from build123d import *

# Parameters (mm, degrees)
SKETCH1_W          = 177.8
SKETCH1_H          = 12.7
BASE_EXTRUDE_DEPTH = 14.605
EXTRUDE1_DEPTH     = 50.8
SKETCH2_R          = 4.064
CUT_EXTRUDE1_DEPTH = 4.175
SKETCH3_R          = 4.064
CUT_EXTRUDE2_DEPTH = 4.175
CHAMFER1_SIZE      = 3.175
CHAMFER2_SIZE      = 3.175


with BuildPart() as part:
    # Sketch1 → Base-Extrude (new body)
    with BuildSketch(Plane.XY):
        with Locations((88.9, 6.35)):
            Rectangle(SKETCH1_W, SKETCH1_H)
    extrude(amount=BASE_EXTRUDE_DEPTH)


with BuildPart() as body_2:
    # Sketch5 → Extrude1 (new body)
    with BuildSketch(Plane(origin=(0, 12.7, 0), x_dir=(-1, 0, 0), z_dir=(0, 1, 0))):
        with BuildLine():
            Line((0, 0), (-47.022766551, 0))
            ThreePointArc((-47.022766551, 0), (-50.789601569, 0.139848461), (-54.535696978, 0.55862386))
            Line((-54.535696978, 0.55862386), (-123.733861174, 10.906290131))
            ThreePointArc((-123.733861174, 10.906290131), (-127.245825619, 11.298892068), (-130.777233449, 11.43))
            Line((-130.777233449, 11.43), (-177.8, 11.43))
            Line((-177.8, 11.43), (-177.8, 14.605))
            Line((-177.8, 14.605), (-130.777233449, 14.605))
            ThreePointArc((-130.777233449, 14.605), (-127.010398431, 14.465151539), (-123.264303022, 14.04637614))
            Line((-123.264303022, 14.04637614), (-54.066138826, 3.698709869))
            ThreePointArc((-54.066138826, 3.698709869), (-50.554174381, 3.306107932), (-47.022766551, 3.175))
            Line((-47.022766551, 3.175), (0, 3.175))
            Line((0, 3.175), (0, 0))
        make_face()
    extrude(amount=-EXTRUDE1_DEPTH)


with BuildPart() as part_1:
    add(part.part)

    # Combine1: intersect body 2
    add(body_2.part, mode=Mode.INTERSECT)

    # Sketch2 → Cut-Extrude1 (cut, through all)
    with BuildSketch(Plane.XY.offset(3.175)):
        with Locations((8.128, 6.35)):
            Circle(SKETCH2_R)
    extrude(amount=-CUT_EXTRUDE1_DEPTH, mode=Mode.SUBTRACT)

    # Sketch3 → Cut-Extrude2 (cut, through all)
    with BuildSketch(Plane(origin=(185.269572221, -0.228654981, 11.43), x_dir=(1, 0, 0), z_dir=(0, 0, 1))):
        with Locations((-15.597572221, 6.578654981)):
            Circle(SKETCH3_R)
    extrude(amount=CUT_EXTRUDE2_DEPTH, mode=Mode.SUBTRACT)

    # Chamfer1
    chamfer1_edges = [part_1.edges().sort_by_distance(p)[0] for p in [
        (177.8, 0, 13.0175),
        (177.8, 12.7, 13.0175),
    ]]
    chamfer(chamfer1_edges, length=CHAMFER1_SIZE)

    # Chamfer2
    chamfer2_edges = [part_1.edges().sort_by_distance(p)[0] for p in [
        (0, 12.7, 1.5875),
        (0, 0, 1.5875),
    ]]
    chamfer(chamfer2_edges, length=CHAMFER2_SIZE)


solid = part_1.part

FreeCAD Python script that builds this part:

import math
import FreeCAD as App
import Part
import Sketcher

V = App.Vector
Q = App.Units.Quantity


def edges_at(feature, points):
    """Names of the edges that pass closest to the given points."""
    edges = feature.Shape.Edges
    near = lambda p: min(range(len(edges)), key=lambda i: edges[i].distToShape(Part.Vertex(*p))[0])
    return sorted({f"Edge{near(p) + 1}" for p in points})

doc = App.newDocument("Part")
body = doc.addObject("PartDesign::Body", "Body")

# Sketch on XY plane
sketch1 = doc.addObject("Sketcher::SketchObject", "Sketch")
body.addObject(sketch1)
sketch1.AttachmentSupport = (doc.XY_Plane, [""])
sketch1.MapMode = "FlatFace"
sketch1.addGeometry([
    Part.LineSegment(V(0, 12.7, 0), V(0, 0, 0)),
    Part.LineSegment(V(0, 0, 0), V(177.8, 0, 0)),
    Part.LineSegment(V(177.8, 0, 0), V(177.8, 12.7, 0)),
    Part.LineSegment(V(177.8, 12.7, 0), V(0, 12.7, 0)),
], False)
sketch1.addConstraint([
    Sketcher.Constraint("Coincident", 0, 2, 1, 1),
    Sketcher.Constraint("Coincident", 1, 2, 2, 1),
    Sketcher.Constraint("Coincident", 2, 2, 3, 1),
    Sketcher.Constraint("Coincident", 3, 2, 0, 1),
    Sketcher.Constraint("Vertical", 0),
    Sketcher.Constraint("Horizontal", 1),
    Sketcher.Constraint("Vertical", 2),
    Sketcher.Constraint("Horizontal", 3),
    Sketcher.Constraint("Coincident", 0, 2, -1, 1),
    Sketcher.Constraint("DistanceX", 1, 1, 1, 2, Q("7 in")),
    Sketcher.Constraint("DistanceY", 0, 2, 0, 1, Q("0.5 in")),
])
pad1 = doc.addObject("PartDesign::Pad", "Pad")
body.addObject(pad1)
pad1.Profile = sketch1
pad1.Length = Q("0.575 in")
body2 = doc.addObject("PartDesign::Body", "Body001")

# Sketch on XZ plane
sketch2 = doc.addObject("Sketcher::SketchObject", "Sketch001")
body2.addObject(sketch2)
sketch2.AttachmentSupport = (doc.getObject("XZ_Plane001"), [""])
sketch2.MapMode = "FlatFace"
sketch2.AttachmentOffset = App.Placement(V(0, 0, -0.5 * 25.4), App.Rotation())
sketch2.addGeometry([
    Part.LineSegment(V(47.022767, 0, 0), V(0, 0, 0)),  # 0
    Part.LineSegment(V(0, 0, 0), V(0, 3.175, 0)),  # 1
    Part.LineSegment(V(0, 3.175, 0), V(47.022767, 3.175, 0)),  # 2
    Part.ArcOfCircle(Part.Circle(V(47.022767, 50.8, 0), V(0, 0, 1), 47.625), math.radians(-90), math.radians(-81.495196)),  # 3
    Part.LineSegment(V(54.066139, 3.69871, 0), V(123.264303, 14.046376, 0)),  # 4
    Part.ArcOfCircle(Part.Circle(V(130.777233, -36.195, 0), V(0, 0, 1), 50.8), math.radians(90), math.radians(98.504804)),  # 5
    Part.LineSegment(V(130.777233, 14.605, 0), V(177.8, 14.605, 0)),  # 6
    Part.LineSegment(V(177.8, 14.605, 0), V(177.8, 11.43, 0)),  # 7
    Part.LineSegment(V(177.8, 11.43, 0), V(130.777233, 11.43, 0)),  # 8
    Part.ArcOfCircle(Part.Circle(V(130.777233, -36.195, 0), V(0, 0, 1), 47.625), math.radians(90), math.radians(98.504804)),  # 9
    Part.LineSegment(V(123.733861, 10.90629, 0), V(54.535697, 0.558624, 0)),  # 10
    Part.ArcOfCircle(Part.Circle(V(47.022767, 50.8, 0), V(0, 0, 1), 50.8), math.radians(-90), math.radians(-81.495196)),  # 11
], False)
sketch2.addConstraint([
    Sketcher.Constraint("Coincident", 0, 2, 1, 1),
    Sketcher.Constraint("Coincident", 1, 2, 2, 1),
    Sketcher.Constraint("Tangent", 2, 2, 3, 1),
    Sketcher.Constraint("Tangent", 3, 2, 4, 1),
    Sketcher.Constraint("Tangent", 4, 2, 5, 2),
    Sketcher.Constraint("Tangent", 5, 1, 6, 1),
    Sketcher.Constraint("Coincident", 6, 2, 7, 1),
    Sketcher.Constraint("Coincident", 7, 2, 8, 1),
    Sketcher.Constraint("Tangent", 8, 2, 9, 1),
    Sketcher.Constraint("Tangent", 9, 2, 10, 1),
    Sketcher.Constraint("Tangent", 10, 2, 11, 2),
    Sketcher.Constraint("Tangent", 11, 1, 0, 1),
    Sketcher.Constraint("Horizontal", 0),
    Sketcher.Constraint("Vertical", 1),
    Sketcher.Constraint("Horizontal", 2),
    Sketcher.Constraint("Horizontal", 6),
    Sketcher.Constraint("Vertical", 7),
    Sketcher.Constraint("Horizontal", 8),
    Sketcher.Constraint("Coincident", 0, 2, -1, 1),
    Sketcher.Constraint("Coincident", 9, 3, 5, 3),
    Sketcher.Constraint("Coincident", 11, 3, 3, 3),
    Sketcher.Constraint("Equal", 3, 9),
    Sketcher.Constraint("Equal", 5, 11),
    Sketcher.Constraint("Equal", 2, 6),
    Sketcher.Constraint("Radius", 5, Q("2 in")),
    Sketcher.Constraint("DistanceX", -1, 1, 6, 2, Q("7 in")),
    Sketcher.Constraint("Radius", 3, Q("1.875 in")),
    Sketcher.Constraint("DistanceY", -1, 1, 7, 2, Q("0.45 in")),
    Sketcher.Constraint("DistanceX", 0, 2, 0, 1, 47.022767),
])
pad2 = doc.addObject("PartDesign::Pad", "Pad001")
body2.addObject(pad2)
pad2.Profile = sketch2
pad2.Length = Q("2 in")
doc.recompute()

boolean = doc.addObject("PartDesign::Boolean", "Boolean")
body.addObject(boolean)
boolean.Type = "Common"
boolean.addObjects([body2])

# Sketch on XY plane
sketch3 = doc.addObject("Sketcher::SketchObject", "Sketch002")
body.addObject(sketch3)
sketch3.AttachmentSupport = (doc.XY_Plane, [""])
sketch3.MapMode = "FlatFace"
sketch3.AttachmentOffset = App.Placement(V(0, 0, 0.125 * 25.4), App.Rotation())
sketch3.addGeometry(Part.Circle(V(8.128, 6.35, 0), V(0, 0, 1), 4.064), False)
sketch3.addConstraint([
    Sketcher.Constraint("Diameter", 0, Q("0.32 in")),
    Sketcher.Constraint("DistanceX", -1, 1, 0, 3, Q("0.32 in")),
    Sketcher.Constraint("DistanceY", -1, 1, 0, 3, Q("0.25 in")),
])
pocket1 = doc.addObject("PartDesign::Pocket", "Pocket")
body.addObject(pocket1)
pocket1.Profile = sketch3
pocket1.Type = "ThroughAll"

# Sketch on XY plane
sketch4 = doc.addObject("Sketcher::SketchObject", "Sketch003")
body.addObject(sketch4)
sketch4.AttachmentSupport = (doc.XY_Plane, [""])
sketch4.MapMode = "FlatFace"
sketch4.AttachmentOffset = App.Placement(V(0, 0, 0.45 * 25.4), App.Rotation())
sketch4.addGeometry(Part.Circle(V(169.672, 6.35, 0), V(0, 0, 1), 4.064), False)
sketch4.addConstraint([
    Sketcher.Constraint("Diameter", 0, Q("0.32 in")),
    Sketcher.Constraint("DistanceX", -1, 1, 0, 3, Q("6.68 in")),
    Sketcher.Constraint("DistanceY", -1, 1, 0, 3, Q("0.25 in")),
])
pocket2 = doc.addObject("PartDesign::Pocket", "Pocket001")
body.addObject(pocket2)
pocket2.Profile = sketch4
pocket2.Type = "ThroughAll"
pocket2.Reversed = True
doc.recompute()

chamfer = doc.addObject("PartDesign::Chamfer", "Chamfer")
body.addObject(chamfer)
chamfer.Base = (pocket2, edges_at(pocket2, [(177.8, 0, 13.018), (177.8, 12.7, 13.018)]))
chamfer.Size = Q("0.125 in")
doc.recompute()

chamfer2 = doc.addObject("PartDesign::Chamfer", "Chamfer001")
body.addObject(chamfer2)
chamfer2.Base = (chamfer, edges_at(chamfer, [(0, 12.7, 1.587), (0, 0, 1.587)]))
chamfer2.Size = Q("0.125 in")

doc.recompute()
